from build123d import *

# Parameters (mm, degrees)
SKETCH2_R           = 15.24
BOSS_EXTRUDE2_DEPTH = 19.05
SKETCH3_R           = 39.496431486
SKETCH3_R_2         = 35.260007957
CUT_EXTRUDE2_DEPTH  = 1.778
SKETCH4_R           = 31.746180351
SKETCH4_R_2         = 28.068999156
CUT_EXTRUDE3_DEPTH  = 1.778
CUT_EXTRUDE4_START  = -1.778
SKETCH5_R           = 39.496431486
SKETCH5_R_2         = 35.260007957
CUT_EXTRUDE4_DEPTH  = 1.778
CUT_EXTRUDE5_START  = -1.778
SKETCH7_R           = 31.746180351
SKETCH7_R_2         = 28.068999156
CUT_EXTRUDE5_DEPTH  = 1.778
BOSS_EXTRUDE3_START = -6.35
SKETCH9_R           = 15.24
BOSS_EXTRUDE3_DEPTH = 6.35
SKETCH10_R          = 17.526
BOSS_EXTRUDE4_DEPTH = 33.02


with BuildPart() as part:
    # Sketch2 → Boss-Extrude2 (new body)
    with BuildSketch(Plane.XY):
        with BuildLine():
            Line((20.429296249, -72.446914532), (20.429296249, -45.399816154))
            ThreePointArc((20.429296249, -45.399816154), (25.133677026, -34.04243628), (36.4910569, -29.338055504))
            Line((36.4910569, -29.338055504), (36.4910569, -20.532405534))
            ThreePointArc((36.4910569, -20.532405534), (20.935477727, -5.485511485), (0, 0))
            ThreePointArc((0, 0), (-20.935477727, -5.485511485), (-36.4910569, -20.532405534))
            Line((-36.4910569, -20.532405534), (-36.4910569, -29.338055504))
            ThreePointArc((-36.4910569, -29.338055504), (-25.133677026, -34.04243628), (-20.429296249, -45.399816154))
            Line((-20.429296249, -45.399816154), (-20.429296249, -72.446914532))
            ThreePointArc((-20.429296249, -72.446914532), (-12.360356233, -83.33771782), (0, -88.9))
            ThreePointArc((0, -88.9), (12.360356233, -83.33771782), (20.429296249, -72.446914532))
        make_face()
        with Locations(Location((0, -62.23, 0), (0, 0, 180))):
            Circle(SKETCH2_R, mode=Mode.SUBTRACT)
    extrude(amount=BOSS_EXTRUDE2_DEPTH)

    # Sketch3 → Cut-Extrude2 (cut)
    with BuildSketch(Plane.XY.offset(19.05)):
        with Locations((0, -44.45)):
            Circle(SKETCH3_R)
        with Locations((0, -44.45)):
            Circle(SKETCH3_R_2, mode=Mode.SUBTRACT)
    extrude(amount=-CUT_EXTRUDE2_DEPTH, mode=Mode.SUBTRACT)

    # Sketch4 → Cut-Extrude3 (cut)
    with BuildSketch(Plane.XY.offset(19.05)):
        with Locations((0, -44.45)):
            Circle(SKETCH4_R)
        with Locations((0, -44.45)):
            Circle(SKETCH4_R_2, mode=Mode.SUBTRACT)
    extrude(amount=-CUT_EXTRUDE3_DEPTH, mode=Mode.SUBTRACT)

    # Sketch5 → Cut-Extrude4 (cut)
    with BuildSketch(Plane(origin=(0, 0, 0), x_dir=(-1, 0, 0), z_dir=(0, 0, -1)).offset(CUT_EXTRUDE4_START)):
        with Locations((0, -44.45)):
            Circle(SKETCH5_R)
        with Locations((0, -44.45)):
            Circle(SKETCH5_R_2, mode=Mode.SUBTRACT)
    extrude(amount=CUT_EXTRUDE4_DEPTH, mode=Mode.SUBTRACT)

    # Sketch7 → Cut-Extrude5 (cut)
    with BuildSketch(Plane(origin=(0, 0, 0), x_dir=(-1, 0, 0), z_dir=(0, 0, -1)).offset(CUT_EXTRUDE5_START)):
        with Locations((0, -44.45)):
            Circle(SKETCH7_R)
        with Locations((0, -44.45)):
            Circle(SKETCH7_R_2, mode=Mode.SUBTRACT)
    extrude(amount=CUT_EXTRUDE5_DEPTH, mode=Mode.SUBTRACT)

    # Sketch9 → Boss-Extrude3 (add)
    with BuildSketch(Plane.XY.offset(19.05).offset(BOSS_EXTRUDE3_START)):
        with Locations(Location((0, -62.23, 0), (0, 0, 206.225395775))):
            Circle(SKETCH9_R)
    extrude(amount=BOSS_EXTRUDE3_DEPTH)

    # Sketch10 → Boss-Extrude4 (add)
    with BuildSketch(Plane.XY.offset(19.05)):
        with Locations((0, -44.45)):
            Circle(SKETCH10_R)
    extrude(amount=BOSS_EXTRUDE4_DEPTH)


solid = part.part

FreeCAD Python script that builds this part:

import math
import FreeCAD as App
import Part
import Sketcher
Q = App.Units.Quantity

doc = App.newDocument("Part")
body = doc.addObject("PartDesign::Body", "Body")

# Sketch on XY plane
sketch1 = body.newObject("Sketcher::SketchObject", "Sketch")
sketch1.AttachmentSupport = (doc.getObject("XY_Plane"), [""])
sketch1.MapMode = "FlatFace"
sketch1.addGeometry(Part.LineSegment(App.Vector(20.429296, -72.446915, 0), App.Vector(20.429296, -45.399816, 0)), False)
sketch1.addGeometry(Part.ArcOfCircle(Part.Circle(App.Vector(36.491057, -45.399816, 0), App.Vector(0, 0, 1), 16.061761), math.radians(90), math.radians(180)), False)
sketch1.addGeometry(Part.LineSegment(App.Vector(36.491057, -29.338056, 0), App.Vector(36.491057, -20.532406, 0)), False)
sketch1.addGeometry(Part.ArcOfCircle(Part.Circle(App.Vector(0, -42.692925, 0), App.Vector(0, 0, 1), 42.692925), math.radians(31.269737), math.radians(90)), False)
sketch1.addGeometry(Part.ArcOfCircle(Part.Circle(App.Vector(0, -42.692925, 0), App.Vector(0, 0, 1), 42.692925), math.radians(90), math.radians(148.730263)), False)
sketch1.addGeometry(Part.LineSegment(App.Vector(-36.491057, -20.532406, 0), App.Vector(-36.491057, -29.338056, 0)), False)
sketch1.addGeometry(Part.ArcOfCircle(Part.Circle(App.Vector(-36.491057, -45.399816, 0), App.Vector(0, 0, 1), 16.061761), math.radians(0), math.radians(90)), False)
sketch1.addGeometry(Part.LineSegment(App.Vector(-20.429296, -45.399816, 0), App.Vector(-20.429296, -72.446915, 0)), False)
sketch1.addGeometry(Part.ArcOfCircle(Part.Circle(App.Vector(4.482584, -62.42435, 0), App.Vector(0, 0, 1), 26.852441), math.radians(-158.084058), math.radians(-99.609601)), False)
sketch1.addGeometry(Part.ArcOfCircle(Part.Circle(App.Vector(-4.482584, -62.42435, 0), App.Vector(0, 0, 1), 26.852441), math.radians(-80.390399), math.radians(-21.915942)), False)
sketch1.addGeometry(Part.Circle(App.Vector(0, -62.23, 0), App.Vector(0, 0, 1), 15.24), False)
sketch1.addConstraint(Sketcher.Constraint("Tangent", 0, 2, 1, 2))
sketch1.addConstraint(Sketcher.Constraint("Coincident", 1, 1, 2, 1))
sketch1.addConstraint(Sketcher.Constraint("Coincident", 2, 2, 3, 1))
sketch1.addConstraint(Sketcher.Constraint("Tangent", 3, 2, 4, 1))
sketch1.addConstraint(Sketcher.Constraint("Coincident", 4, 2, 5, 1))
sketch1.addConstraint(Sketcher.Constraint("Coincident", 5, 2, 6, 2))
sketch1.addConstraint(Sketcher.Constraint("Tangent", 6, 1, 7, 1))
sketch1.addConstraint(Sketcher.Constraint("Coincident", 7, 2, 8, 1))
sketch1.addConstraint(Sketcher.Constraint("Coincident", 8, 2, 9, 1))
sketch1.addConstraint(Sketcher.Constraint("Coincident", 9, 2, 0, 1))
sketch1.addConstraint(Sketcher.Constraint("Vertical", 0))
sketch1.addConstraint(Sketcher.Constraint("Vertical", 2))
sketch1.addConstraint(Sketcher.Constraint("Vertical", 5))
sketch1.addConstraint(Sketcher.Constraint("Vertical", 7))
sketch1.addConstraint(Sketcher.Constraint("Coincident", 3, 2, -1, 1))
sketch1.addConstraint(Sketcher.Constraint("Equal", 3, 4))
sketch1.addConstraint(Sketcher.Constraint("Equal", 1, 6))
sketch1.addConstraint(Sketcher.Constraint("Equal", 8, 9))
sketch1.addConstraint(Sketcher.Constraint("Symmetric", 1, 3, 6, 3, -2))
sketch1.addConstraint(Sketcher.Constraint("Symmetric", 8, 3, 9, 3, -2))
sketch1.addConstraint(Sketcher.Constraint("Symmetric", 2, 2, 4, 2, -2))
sketch1.addConstraint(Sketcher.Constraint("PointOnObject", 10, 3, -2))
sketch1.addConstraint(Sketcher.Constraint("Vertical", 6, 3, 4, 2))
sketch1.addConstraint(Sketcher.Constraint("Diameter", 10, Q("1.2 in")))
sketch1.addConstraint(Sketcher.Constraint("DistanceY", 8, 2, -1, 1, Q("3.5 in")))
sketch1.addConstraint(Sketcher.Constraint("DistanceY", 10, 3, -1, 1, Q("2.45 in")))
sketch1.addConstraint(Sketcher.Constraint("Radius", 1, 16.061761))
sketch1.addConstraint(Sketcher.Constraint("Radius", 8, 26.852441))
sketch1.addConstraint(Sketcher.Constraint("DistanceY", 0, 1, 0, 2, 27.047098))
sketch1.addConstraint(Sketcher.Constraint("Radius", 3, 42.692925))
sketch1.addConstraint(Sketcher.Constraint("DistanceY", 2, 1, 2, 2, 8.80565))
sketch1.addConstraint(Sketcher.Constraint("DistanceY", 8, 3, -1, 1, 62.42435))
pad1 = body.newObject("PartDesign::Pad", "Pad")
pad1.Profile = sketch1
pad1.Length = Q("0.75 in")

# Sketch on XY plane
sketch2 = body.newObject("Sketcher::SketchObject", "Sketch001")
sketch2.AttachmentSupport = (doc.getObject("XY_Plane"), [""])
sketch2.MapMode = "FlatFace"
sketch2.AttachmentOffset = App.Placement(App.Vector(0, 0, 0.75 * 25.4), App.Rotation())
sketch2.addGeometry(Part.Circle(App.Vector(0, -44.45, 0), App.Vector(0, 0, 1), 39.496431), False)
sketch2.addGeometry(Part.Circle(App.Vector(0, -44.45, 0), App.Vector(0, 0, 1), 35.260008), False)
sketch2.addConstraint(Sketcher.Constraint("Coincident", 1, 3, 0, 3))
sketch2.addConstraint(Sketcher.Constraint("PointOnObject", 0, 3, -2))
sketch2.addConstraint(Sketcher.Constraint("DistanceY", 0, 3, -1, 1, Q("1.75 in")))
sketch2.addConstraint(Sketcher.Constraint("Diameter", 0, 78.992863))
sketch2.addConstraint(Sketcher.Constraint("Diameter", 1, 70.520016))
pocket1 = body.newObject("PartDesign::Pocket", "Pocket")
pocket1.Profile = sketch2
pocket1.Length = Q("0.07 in")

# Sketch on XY plane
sketch3 = body.newObject("Sketcher::SketchObject", "Sketch002")
sketch3.AttachmentSupport = (doc.getObject("XY_Plane"), [""])
sketch3.MapMode = "FlatFace"
sketch3.AttachmentOffset = App.Placement(App.Vector(0, 0, 0.75 * 25.4), App.Rotation())
sketch3.addGeometry(Part.Circle(App.Vector(0, -44.45, 0), App.Vector(0, 0, 1), 31.74618), False)
sketch3.addGeometry(Part.Circle(App.Vector(0, -44.45, 0), App.Vector(0, 0, 1), 28.068999), False)
sketch3.addConstraint(Sketcher.Constraint("Coincident", 1, 3, 0, 3))
sketch3.addConstraint(Sketcher.Constraint("PointOnObject", 0, 3, -2))
sketch3.addConstraint(Sketcher.Constraint("Diameter", 1, 56.137998))
sketch3.addConstraint(Sketcher.Constraint("DistanceY", 0, 3, -1, 1, Q("1.75 in")))
sketch3.addConstraint(Sketcher.Constraint("Diameter", 0, 63.492361))
pocket2 = body.newObject("PartDesign::Pocket", "Pocket001")
pocket2.Profile = sketch3
pocket2.Length = Q("0.07 in")

# Sketch on XY plane
sketch4 = body.newObject("Sketcher::SketchObject", "Sketch003")
sketch4.AttachmentSupport = (doc.getObject("XY_Plane"), [""])
sketch4.MapMode = "FlatFace"
sketch4.AttachmentOffset = App.Placement(App.Vector(0, 0, 0.07 * 25.4), App.Rotation())
sketch4.addGeometry(Part.Circle(App.Vector(0, -44.45, 0), App.Vector(0, 0, 1), 39.496431), False)
sketch4.addGeometry(Part.Circle(App.Vector(0, -44.45, 0), App.Vector(0, 0, 1), 35.260008), False)
sketch4.addConstraint(Sketcher.Constraint("Coincident", 1, 3, 0, 3))
sketch4.addConstraint(Sketcher.Constraint("PointOnObject", 0, 3, -2))
sketch4.addConstraint(Sketcher.Constraint("DistanceY", 0, 3, -1, 1, Q("1.75 in")))
sketch4.addConstraint(Sketcher.Constraint("Diameter", 0, 78.992863))
sketch4.addConstraint(Sketcher.Constraint("Diameter", 1, 70.520016))
pocket3 = body.newObject("PartDesign::Pocket", "Pocket002")
pocket3.Profile = sketch4
pocket3.Length = Q("0.07 in")

# Sketch on XY plane
sketch5 = body.newObject("Sketcher::SketchObject", "Sketch004")
sketch5.AttachmentSupport = (doc.getObject("XY_Plane"), [""])
sketch5.MapMode = "FlatFace"
sketch5.AttachmentOffset = App.Placement(App.Vector(0, 0, 0.07 * 25.4), App.Rotation())
sketch5.addGeometry(Part.Circle(App.Vector(0, -44.45, 0), App.Vector(0, 0, 1), 31.74618), False)
sketch5.addGeometry(Part.Circle(App.Vector(0, -44.45, 0), App.Vector(0, 0, 1), 28.068999), False)
sketch5.addConstraint(Sketcher.Constraint("Coincident", 1, 3, 0, 3))
sketch5.addConstraint(Sketcher.Constraint("PointOnObject", 0, 3, -2))
sketch5.addConstraint(Sketcher.Constraint("Diameter", 1, 56.137998))
sketch5.addConstraint(Sketcher.Constraint("DistanceY", 0, 3, -1, 1, Q("1.75 in")))
sketch5.addConstraint(Sketcher.Constraint("Diameter", 0, 63.492361))
pocket4 = body.newObject("PartDesign::Pocket", "Pocket003")
pocket4.Profile = sketch5
pocket4.Length = Q("0.07 in")

# Sketch on XY plane
sketch6 = body.newObject("Sketcher::SketchObject", "Sketch005")
sketch6.AttachmentSupport = (doc.getObject("XY_Plane"), [""])
sketch6.MapMode = "FlatFace"
sketch6.AttachmentOffset = App.Placement(App.Vector(0, 0, 0.5 * 25.4), App.Rotation())
sketch6.addGeometry(Part.Circle(App.Vector(0, -62.23, 0), App.Vector(0, 0, 1), 15.24), False)
sketch6.addConstraint(Sketcher.Constraint("PointOnObject", 0, 3, -2))
sketch6.addConstraint(Sketcher.Constraint("Diameter", 0, Q("1.2 in")))
sketch6.addConstraint(Sketcher.Constraint("DistanceY", 0, 3, -1, 1, Q("2.45 in")))
pad2 = body.newObject("PartDesign::Pad", "Pad001")
pad2.Profile = sketch6
pad2.Length = Q("0.25 in")

# Sketch on XY plane
sketch7 = body.newObject("Sketcher::SketchObject", "Sketch006")
sketch7.AttachmentSupport = (doc.getObject("XY_Plane"), [""])
sketch7.MapMode = "FlatFace"
sketch7.AttachmentOffset = App.Placement(App.Vector(0, 0, 0.75 * 25.4), App.Rotation())
sketch7.addGeometry(Part.Circle(App.Vector(0, -44.45, 0), App.Vector(0, 0, 1), 17.526), False)
sketch7.addConstraint(Sketcher.Constraint("PointOnObject", 0, 3, -2))
sketch7.addConstraint(Sketcher.Constraint("Diameter", 0, Q("1.38 in")))
sketch7.addConstraint(Sketcher.Constraint("DistanceY", 0, 3, -1, 1, Q("1.75 in")))
pad3 = body.newObject("PartDesign::Pad", "Pad002")
pad3.Profile = sketch7
pad3.Length = Q("1.3 in")

doc.recompute()
